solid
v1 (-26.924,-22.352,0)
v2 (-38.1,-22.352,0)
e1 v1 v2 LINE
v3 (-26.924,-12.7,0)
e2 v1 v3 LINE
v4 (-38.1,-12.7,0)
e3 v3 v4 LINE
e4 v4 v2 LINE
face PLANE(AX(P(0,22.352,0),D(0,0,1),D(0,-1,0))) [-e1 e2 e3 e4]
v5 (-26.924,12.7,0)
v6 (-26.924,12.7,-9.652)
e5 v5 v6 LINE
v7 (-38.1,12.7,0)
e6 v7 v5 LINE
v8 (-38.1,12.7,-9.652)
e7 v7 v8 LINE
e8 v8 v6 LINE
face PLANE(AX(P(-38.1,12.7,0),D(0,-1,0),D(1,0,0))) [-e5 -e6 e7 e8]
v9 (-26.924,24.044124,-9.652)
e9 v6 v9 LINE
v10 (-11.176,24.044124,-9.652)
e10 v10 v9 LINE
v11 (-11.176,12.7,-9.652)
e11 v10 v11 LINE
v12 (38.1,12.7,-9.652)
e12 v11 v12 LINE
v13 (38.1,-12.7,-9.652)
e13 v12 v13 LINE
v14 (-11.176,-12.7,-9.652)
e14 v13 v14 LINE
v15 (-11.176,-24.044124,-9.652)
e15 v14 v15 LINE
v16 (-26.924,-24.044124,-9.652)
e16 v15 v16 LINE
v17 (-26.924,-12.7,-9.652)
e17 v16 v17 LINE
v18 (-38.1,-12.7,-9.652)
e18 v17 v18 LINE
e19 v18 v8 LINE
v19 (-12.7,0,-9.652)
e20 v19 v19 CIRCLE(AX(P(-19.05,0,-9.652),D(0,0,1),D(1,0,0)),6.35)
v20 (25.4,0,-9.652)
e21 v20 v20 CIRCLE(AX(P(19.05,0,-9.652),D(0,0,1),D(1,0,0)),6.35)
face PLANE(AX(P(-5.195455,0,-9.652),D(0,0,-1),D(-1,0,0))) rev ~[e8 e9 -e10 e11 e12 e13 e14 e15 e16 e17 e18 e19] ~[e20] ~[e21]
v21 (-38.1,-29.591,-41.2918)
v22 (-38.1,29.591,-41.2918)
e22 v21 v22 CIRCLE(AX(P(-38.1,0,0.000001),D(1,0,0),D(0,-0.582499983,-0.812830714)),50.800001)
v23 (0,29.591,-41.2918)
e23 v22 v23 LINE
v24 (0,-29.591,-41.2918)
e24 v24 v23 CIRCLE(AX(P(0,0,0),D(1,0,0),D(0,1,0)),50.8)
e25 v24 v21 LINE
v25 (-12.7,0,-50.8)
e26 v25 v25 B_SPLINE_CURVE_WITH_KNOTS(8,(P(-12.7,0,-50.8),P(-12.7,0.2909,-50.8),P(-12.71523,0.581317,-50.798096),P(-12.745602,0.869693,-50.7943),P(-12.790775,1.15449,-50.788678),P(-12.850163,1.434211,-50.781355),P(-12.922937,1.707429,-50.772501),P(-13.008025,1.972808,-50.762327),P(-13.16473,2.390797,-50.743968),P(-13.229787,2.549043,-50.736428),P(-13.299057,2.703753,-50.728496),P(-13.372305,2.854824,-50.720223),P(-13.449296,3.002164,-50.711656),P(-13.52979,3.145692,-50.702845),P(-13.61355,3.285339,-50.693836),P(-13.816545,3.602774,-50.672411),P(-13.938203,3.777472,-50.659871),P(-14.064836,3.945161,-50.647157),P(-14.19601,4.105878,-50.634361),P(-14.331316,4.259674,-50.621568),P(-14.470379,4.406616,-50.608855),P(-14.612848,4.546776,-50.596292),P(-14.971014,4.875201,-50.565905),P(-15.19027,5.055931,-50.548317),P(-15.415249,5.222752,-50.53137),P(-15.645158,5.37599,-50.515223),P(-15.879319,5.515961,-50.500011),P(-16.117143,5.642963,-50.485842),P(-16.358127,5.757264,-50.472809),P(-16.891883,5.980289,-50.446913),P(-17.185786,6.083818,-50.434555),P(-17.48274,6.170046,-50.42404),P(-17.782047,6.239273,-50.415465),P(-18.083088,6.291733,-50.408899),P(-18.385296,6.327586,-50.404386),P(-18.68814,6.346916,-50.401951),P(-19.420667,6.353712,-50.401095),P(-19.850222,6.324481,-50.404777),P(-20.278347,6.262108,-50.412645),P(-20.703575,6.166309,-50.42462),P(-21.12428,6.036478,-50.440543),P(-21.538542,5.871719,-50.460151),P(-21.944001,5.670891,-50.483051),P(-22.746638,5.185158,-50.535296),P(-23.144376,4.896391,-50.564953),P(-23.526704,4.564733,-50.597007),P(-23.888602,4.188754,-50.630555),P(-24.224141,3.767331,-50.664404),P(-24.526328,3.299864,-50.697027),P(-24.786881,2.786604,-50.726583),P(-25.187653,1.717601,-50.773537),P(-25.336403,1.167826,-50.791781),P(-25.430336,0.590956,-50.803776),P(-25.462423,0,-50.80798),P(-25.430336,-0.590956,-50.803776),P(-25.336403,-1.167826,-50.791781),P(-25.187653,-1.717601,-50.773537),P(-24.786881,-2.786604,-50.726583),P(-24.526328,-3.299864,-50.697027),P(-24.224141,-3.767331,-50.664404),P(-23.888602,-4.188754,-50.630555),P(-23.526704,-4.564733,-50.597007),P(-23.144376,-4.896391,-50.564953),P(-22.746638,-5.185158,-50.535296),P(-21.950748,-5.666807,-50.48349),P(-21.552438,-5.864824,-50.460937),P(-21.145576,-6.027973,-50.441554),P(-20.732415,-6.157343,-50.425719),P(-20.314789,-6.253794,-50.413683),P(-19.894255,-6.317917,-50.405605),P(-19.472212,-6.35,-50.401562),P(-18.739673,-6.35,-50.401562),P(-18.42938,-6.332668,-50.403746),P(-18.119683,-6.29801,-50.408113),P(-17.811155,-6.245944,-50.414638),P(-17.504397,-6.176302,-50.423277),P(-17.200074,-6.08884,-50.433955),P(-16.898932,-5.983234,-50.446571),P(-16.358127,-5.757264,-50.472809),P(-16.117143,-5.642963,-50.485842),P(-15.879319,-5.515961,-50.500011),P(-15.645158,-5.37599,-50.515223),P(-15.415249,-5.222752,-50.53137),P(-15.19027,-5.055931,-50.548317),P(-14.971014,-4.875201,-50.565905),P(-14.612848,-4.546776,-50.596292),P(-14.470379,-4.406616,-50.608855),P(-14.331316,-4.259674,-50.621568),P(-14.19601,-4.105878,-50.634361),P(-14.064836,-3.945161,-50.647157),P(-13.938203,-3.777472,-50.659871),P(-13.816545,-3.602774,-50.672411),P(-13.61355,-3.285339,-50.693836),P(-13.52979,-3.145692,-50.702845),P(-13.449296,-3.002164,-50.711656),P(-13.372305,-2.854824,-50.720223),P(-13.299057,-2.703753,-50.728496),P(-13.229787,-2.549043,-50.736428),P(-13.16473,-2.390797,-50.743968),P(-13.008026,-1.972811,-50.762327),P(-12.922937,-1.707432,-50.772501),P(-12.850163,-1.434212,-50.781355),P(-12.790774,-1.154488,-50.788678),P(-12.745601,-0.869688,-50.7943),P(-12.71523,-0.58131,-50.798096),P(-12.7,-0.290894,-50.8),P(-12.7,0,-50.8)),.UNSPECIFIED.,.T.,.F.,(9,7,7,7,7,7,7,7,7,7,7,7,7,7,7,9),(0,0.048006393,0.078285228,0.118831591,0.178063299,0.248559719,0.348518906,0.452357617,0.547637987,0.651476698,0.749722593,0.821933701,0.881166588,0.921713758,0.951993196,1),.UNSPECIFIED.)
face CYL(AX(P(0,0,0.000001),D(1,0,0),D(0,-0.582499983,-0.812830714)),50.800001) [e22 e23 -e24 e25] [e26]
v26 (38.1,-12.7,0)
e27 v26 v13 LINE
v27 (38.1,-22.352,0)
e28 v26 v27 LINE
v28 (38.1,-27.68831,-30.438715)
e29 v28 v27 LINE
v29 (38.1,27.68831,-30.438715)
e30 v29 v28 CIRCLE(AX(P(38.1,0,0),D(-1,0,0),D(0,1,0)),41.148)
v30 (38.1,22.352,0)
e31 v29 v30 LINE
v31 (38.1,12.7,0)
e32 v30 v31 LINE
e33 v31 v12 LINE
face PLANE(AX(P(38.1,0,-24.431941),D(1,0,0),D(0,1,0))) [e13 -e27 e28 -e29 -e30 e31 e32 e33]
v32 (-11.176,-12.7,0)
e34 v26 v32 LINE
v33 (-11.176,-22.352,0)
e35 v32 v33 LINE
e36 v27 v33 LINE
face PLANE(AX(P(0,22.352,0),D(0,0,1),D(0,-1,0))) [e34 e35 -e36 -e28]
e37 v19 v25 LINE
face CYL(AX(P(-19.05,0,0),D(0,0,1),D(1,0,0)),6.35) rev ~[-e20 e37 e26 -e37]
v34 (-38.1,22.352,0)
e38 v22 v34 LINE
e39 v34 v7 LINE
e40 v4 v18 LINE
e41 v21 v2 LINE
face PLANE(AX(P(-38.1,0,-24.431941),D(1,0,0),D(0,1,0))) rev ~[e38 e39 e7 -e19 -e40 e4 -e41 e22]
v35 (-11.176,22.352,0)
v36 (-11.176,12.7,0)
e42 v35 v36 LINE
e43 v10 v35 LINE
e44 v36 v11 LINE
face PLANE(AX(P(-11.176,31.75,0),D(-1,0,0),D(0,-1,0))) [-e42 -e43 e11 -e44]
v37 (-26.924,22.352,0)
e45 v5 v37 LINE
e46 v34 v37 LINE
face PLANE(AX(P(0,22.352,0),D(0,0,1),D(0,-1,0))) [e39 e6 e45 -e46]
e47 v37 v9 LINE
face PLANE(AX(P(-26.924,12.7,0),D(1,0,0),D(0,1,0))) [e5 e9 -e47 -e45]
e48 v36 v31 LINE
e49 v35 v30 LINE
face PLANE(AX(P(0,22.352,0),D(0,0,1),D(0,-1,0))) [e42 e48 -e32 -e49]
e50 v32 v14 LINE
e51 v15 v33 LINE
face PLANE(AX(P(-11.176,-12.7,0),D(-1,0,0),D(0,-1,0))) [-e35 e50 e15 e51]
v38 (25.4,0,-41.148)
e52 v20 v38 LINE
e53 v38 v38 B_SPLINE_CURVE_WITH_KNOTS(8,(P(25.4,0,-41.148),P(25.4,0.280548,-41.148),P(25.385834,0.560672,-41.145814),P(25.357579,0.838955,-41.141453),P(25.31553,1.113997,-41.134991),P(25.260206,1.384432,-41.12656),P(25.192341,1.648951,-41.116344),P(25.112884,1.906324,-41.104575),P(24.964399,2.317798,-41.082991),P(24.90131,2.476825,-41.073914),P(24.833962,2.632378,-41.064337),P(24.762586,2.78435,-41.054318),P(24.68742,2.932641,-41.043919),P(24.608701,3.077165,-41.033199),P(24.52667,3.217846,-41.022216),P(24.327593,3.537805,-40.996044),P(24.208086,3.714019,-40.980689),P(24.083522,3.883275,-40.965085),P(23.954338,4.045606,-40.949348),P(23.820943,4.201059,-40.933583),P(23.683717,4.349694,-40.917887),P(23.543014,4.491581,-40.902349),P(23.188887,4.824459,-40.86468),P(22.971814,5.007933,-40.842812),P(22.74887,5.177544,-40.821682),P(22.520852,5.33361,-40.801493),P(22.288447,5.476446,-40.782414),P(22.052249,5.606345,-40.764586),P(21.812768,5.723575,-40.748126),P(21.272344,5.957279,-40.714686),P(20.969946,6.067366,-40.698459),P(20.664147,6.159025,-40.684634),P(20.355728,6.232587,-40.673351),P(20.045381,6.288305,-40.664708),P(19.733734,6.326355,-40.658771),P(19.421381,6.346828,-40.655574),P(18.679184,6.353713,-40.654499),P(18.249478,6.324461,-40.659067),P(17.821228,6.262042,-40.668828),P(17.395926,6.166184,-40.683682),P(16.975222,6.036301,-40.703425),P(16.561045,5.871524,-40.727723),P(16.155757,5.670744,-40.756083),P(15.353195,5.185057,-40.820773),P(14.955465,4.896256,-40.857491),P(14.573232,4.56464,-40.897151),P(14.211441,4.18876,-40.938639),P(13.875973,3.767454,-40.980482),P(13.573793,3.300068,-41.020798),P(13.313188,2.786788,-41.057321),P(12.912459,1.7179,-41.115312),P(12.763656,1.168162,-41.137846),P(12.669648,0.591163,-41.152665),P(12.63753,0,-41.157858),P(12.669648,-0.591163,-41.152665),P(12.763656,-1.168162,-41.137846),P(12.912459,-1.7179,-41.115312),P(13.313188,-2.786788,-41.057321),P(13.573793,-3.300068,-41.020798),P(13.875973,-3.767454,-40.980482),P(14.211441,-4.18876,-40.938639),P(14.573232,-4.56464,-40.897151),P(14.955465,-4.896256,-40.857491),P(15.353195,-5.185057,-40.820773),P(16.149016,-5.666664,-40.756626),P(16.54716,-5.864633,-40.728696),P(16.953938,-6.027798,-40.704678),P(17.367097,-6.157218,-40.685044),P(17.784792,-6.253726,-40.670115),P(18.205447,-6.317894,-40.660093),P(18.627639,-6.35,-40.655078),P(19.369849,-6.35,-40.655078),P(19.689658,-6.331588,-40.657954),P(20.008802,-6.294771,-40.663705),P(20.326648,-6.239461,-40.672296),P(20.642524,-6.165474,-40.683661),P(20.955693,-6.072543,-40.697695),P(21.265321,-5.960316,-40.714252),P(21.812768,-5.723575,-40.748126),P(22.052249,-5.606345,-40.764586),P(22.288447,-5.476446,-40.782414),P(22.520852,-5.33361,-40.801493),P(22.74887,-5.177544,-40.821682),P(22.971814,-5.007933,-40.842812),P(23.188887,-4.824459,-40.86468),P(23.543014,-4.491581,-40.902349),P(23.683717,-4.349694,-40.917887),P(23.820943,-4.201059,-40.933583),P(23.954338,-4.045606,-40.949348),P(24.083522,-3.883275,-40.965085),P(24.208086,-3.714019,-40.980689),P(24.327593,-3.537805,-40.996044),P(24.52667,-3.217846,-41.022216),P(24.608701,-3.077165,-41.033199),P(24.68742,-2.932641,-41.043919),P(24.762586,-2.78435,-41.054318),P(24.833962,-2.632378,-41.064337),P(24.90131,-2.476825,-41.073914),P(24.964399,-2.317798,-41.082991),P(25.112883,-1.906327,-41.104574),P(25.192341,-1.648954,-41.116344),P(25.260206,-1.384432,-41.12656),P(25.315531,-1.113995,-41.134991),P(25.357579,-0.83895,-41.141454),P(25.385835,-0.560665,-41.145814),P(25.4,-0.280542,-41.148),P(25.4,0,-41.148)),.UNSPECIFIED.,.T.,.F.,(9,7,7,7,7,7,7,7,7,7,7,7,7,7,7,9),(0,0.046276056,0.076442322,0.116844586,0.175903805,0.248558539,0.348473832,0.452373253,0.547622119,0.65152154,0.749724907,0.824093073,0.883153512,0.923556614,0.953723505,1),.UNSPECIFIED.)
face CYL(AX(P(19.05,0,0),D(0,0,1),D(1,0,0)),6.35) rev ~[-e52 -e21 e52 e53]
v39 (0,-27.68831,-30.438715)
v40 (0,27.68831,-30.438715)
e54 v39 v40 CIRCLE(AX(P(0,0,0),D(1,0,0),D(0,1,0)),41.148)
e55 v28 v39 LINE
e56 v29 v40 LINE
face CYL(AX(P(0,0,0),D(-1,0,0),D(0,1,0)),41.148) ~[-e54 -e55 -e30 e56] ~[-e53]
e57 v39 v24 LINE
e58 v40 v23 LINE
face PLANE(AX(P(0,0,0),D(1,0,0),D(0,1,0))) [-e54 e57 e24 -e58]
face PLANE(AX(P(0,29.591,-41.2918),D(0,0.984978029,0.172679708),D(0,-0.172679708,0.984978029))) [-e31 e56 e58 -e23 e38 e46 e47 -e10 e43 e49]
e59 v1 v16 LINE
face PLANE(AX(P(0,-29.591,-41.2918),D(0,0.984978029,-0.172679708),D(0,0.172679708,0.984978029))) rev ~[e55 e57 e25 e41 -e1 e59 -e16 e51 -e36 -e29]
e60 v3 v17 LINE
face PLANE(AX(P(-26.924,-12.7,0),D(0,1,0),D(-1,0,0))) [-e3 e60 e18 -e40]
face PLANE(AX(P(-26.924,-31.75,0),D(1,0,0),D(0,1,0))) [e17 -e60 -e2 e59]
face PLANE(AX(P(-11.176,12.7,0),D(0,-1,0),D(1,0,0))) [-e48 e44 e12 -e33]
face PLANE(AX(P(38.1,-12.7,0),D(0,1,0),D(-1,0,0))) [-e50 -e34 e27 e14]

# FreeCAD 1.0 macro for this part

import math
import FreeCAD as App
import Part
import Sketcher

V = App.Vector
Q = App.Units.Quantity


def add_polygon(sketch, points):
    """Adds a closed chain of lines whose ends are joined by coincident constraints."""
    first, n = sketch.GeometryCount, len(points)
    for a, b in zip(points, points[1:] + points[:1]):
        sketch.addGeometry(Part.LineSegment(App.Vector(*a, 0), App.Vector(*b, 0)), False)
    for i in range(n):
        sketch.addConstraint(Sketcher.Constraint("Coincident", first + i, 2, first + (i + 1) % n, 1))

doc = App.newDocument("Part")
body = doc.addObject("PartDesign::Body", "Body")

# Sketch on YZ plane
sketch1 = body.newObject("Sketcher::SketchObject", "Sketch")
sketch1.AttachmentSupport = (doc.getObject("YZ_Plane"), [""])
sketch1.MapMode = "FlatFace"
sketch1.addGeometry([
    Part.ArcOfCircle(Part.Circle(V(0, 0, 0), V(0, 0, 1), 51), math.radians(-126), math.radians(-54)),
    Part.LineSegment(V(30, -41, 0), V(22, 0, 0)),
    Part.LineSegment(V(22, 0, 0), V(-22, 0, 0)),
    Part.LineSegment(V(-22, 0, 0), V(-30, -41, 0)),
], False)
sketch1.addConstraint([
    Sketcher.Constraint("Coincident", 0, 2, 1, 1),
    Sketcher.Constraint("Coincident", 1, 2, 2, 1),
    Sketcher.Constraint("Coincident", 2, 2, 3, 1),
    Sketcher.Constraint("Coincident", 3, 2, 0, 1),
    Sketcher.Constraint("Horizontal", 2),
    Sketcher.Constraint("Coincident", 0, 3, -1, 1),
    Sketcher.Constraint("Symmetric", 1, 2, 2, 2, -1, 1),
    Sketcher.Constraint("Horizontal", 0, 2, 3, 2),
    Sketcher.Constraint("Radius", 0, Q("2.0000001 in")),
    Sketcher.Constraint("DistanceX", 2, 2, 2, 1, Q("1.76 in")),
    Sketcher.Constraint("DistanceX", 3, 2, 0, 2, Q("2.33 in")),
])
pad1 = body.newObject("PartDesign::Pad", "Pad")
pad1.Profile = sketch1
pad1.Length = Q("3 in")
pad1.Midplane = True

# Sketch on YZ plane
sketch2 = body.newObject("Sketcher::SketchObject", "Sketch001")
sketch2.AttachmentSupport = (doc.getObject("YZ_Plane"), [""])
sketch2.MapMode = "FlatFace"
sketch2.addGeometry([
    Part.Circle(V(0, 0, 0), V(0, 0, 1), 51),
    Part.Circle(V(0, 0, 0), V(0, 0, 1), 41),
], False)
sketch2.addConstraint([
    Sketcher.Constraint("Coincident", 0, 3, -1, 1),
    Sketcher.Constraint("Coincident", 1, 3, -1, 1),
    Sketcher.Constraint("Diameter", 0, Q("4 in")),
    Sketcher.Constraint("Diameter", 1, Q("3.24 in")),
])
pocket1 = body.newObject("PartDesign::Pocket", "Pocket")
pocket1.Profile = sketch2
pocket1.Type = "ThroughAll"
pocket1.Reversed = True

# Sketch on XY plane
sketch3 = body.newObject("Sketcher::SketchObject", "Sketch002")
sketch3.AttachmentSupport = (doc.getObject("XY_Plane"), [""])
sketch3.MapMode = "FlatFace"
sketch3.addGeometry([
    Part.Circle(V(-19, 0, 0), V(0, 0, 1), 6),
    Part.Circle(V(19, 0, 0), V(0, 0, 1), 6),
], False)
sketch3.addConstraint([
    Sketcher.Constraint("Equal", 0, 1),
    Sketcher.Constraint("Symmetric", 0, 3, 1, 3, -1, 1),
    Sketcher.Constraint("PointOnObject", 0, 3, -1),
    Sketcher.Constraint("Diameter", 0, Q("0.5 in")),
    Sketcher.Constraint("DistanceX", 0, 3, 1, 3, Q("1.5 in")),
])
pocket2 = body.newObject("PartDesign::Pocket", "Pocket001")
pocket2.Profile = sketch3
pocket2.Type = "ThroughAll"

# Sketch on XY plane
sketch4 = body.newObject("Sketcher::SketchObject", "Sketch003")
sketch4.AttachmentSupport = (doc.getObject("XY_Plane"), [""])
sketch4.MapMode = "FlatFace"
add_polygon(sketch4, [(-11, 32), (-27, 32), (-27, 13), (-38, 13), (-38, -13), (-27, -13), (-27, -32), (-11, -32), (-11, -13), (38, -13), (38, 13), (-11, 13)])  # lines 0-11
sketch4.addConstraint([
    Sketcher.Constraint("Horizontal", 0),
    Sketcher.Constraint("Vertical", 1),
    Sketcher.Constraint("Horizontal", 2),
    Sketcher.Constraint("Vertical", 3),
    Sketcher.Constraint("Horizontal", 4),
    Sketcher.Constraint("Vertical", 5),
    Sketcher.Constraint("Horizontal", 6),
    Sketcher.Constraint("Vertical", 7),
    Sketcher.Constraint("Horizontal", 8),
    Sketcher.Constraint("Vertical", 9),
    Sketcher.Constraint("Horizontal", 10),
    Sketcher.Constraint("Vertical", 11),
    Sketcher.Constraint("Symmetric", 2, 2, 8, 2, -1, 1),
    Sketcher.Constraint("Symmetric", 1, 2, 4, 2, -1),
    Sketcher.Constraint("Symmetric", 7, 2, 10, 2, -1),
    Sketcher.Constraint("Equal", 1, 5),
    Sketcher.Constraint("DistanceY", 3, 2, 3, 1, Q("1 in")),
    Sketcher.Constraint("DistanceX", 0, 2, 0, 1, Q("0.62 in")),
    Sketcher.Constraint("DistanceX", 2, 2, 2, 1, Q("0.44 in")),
    Sketcher.Constraint("DistanceX", 8, 1, 8, 2, Q("1.94 in")),
    Sketcher.Constraint("DistanceY", 1, 2, 1, 1, Q("0.75 in")),
])
pocket3 = body.newObject("PartDesign::Pocket", "Pocket002")
pocket3.Profile = sketch4
pocket3.Length = Q("0.38 in")

doc.recompute()
